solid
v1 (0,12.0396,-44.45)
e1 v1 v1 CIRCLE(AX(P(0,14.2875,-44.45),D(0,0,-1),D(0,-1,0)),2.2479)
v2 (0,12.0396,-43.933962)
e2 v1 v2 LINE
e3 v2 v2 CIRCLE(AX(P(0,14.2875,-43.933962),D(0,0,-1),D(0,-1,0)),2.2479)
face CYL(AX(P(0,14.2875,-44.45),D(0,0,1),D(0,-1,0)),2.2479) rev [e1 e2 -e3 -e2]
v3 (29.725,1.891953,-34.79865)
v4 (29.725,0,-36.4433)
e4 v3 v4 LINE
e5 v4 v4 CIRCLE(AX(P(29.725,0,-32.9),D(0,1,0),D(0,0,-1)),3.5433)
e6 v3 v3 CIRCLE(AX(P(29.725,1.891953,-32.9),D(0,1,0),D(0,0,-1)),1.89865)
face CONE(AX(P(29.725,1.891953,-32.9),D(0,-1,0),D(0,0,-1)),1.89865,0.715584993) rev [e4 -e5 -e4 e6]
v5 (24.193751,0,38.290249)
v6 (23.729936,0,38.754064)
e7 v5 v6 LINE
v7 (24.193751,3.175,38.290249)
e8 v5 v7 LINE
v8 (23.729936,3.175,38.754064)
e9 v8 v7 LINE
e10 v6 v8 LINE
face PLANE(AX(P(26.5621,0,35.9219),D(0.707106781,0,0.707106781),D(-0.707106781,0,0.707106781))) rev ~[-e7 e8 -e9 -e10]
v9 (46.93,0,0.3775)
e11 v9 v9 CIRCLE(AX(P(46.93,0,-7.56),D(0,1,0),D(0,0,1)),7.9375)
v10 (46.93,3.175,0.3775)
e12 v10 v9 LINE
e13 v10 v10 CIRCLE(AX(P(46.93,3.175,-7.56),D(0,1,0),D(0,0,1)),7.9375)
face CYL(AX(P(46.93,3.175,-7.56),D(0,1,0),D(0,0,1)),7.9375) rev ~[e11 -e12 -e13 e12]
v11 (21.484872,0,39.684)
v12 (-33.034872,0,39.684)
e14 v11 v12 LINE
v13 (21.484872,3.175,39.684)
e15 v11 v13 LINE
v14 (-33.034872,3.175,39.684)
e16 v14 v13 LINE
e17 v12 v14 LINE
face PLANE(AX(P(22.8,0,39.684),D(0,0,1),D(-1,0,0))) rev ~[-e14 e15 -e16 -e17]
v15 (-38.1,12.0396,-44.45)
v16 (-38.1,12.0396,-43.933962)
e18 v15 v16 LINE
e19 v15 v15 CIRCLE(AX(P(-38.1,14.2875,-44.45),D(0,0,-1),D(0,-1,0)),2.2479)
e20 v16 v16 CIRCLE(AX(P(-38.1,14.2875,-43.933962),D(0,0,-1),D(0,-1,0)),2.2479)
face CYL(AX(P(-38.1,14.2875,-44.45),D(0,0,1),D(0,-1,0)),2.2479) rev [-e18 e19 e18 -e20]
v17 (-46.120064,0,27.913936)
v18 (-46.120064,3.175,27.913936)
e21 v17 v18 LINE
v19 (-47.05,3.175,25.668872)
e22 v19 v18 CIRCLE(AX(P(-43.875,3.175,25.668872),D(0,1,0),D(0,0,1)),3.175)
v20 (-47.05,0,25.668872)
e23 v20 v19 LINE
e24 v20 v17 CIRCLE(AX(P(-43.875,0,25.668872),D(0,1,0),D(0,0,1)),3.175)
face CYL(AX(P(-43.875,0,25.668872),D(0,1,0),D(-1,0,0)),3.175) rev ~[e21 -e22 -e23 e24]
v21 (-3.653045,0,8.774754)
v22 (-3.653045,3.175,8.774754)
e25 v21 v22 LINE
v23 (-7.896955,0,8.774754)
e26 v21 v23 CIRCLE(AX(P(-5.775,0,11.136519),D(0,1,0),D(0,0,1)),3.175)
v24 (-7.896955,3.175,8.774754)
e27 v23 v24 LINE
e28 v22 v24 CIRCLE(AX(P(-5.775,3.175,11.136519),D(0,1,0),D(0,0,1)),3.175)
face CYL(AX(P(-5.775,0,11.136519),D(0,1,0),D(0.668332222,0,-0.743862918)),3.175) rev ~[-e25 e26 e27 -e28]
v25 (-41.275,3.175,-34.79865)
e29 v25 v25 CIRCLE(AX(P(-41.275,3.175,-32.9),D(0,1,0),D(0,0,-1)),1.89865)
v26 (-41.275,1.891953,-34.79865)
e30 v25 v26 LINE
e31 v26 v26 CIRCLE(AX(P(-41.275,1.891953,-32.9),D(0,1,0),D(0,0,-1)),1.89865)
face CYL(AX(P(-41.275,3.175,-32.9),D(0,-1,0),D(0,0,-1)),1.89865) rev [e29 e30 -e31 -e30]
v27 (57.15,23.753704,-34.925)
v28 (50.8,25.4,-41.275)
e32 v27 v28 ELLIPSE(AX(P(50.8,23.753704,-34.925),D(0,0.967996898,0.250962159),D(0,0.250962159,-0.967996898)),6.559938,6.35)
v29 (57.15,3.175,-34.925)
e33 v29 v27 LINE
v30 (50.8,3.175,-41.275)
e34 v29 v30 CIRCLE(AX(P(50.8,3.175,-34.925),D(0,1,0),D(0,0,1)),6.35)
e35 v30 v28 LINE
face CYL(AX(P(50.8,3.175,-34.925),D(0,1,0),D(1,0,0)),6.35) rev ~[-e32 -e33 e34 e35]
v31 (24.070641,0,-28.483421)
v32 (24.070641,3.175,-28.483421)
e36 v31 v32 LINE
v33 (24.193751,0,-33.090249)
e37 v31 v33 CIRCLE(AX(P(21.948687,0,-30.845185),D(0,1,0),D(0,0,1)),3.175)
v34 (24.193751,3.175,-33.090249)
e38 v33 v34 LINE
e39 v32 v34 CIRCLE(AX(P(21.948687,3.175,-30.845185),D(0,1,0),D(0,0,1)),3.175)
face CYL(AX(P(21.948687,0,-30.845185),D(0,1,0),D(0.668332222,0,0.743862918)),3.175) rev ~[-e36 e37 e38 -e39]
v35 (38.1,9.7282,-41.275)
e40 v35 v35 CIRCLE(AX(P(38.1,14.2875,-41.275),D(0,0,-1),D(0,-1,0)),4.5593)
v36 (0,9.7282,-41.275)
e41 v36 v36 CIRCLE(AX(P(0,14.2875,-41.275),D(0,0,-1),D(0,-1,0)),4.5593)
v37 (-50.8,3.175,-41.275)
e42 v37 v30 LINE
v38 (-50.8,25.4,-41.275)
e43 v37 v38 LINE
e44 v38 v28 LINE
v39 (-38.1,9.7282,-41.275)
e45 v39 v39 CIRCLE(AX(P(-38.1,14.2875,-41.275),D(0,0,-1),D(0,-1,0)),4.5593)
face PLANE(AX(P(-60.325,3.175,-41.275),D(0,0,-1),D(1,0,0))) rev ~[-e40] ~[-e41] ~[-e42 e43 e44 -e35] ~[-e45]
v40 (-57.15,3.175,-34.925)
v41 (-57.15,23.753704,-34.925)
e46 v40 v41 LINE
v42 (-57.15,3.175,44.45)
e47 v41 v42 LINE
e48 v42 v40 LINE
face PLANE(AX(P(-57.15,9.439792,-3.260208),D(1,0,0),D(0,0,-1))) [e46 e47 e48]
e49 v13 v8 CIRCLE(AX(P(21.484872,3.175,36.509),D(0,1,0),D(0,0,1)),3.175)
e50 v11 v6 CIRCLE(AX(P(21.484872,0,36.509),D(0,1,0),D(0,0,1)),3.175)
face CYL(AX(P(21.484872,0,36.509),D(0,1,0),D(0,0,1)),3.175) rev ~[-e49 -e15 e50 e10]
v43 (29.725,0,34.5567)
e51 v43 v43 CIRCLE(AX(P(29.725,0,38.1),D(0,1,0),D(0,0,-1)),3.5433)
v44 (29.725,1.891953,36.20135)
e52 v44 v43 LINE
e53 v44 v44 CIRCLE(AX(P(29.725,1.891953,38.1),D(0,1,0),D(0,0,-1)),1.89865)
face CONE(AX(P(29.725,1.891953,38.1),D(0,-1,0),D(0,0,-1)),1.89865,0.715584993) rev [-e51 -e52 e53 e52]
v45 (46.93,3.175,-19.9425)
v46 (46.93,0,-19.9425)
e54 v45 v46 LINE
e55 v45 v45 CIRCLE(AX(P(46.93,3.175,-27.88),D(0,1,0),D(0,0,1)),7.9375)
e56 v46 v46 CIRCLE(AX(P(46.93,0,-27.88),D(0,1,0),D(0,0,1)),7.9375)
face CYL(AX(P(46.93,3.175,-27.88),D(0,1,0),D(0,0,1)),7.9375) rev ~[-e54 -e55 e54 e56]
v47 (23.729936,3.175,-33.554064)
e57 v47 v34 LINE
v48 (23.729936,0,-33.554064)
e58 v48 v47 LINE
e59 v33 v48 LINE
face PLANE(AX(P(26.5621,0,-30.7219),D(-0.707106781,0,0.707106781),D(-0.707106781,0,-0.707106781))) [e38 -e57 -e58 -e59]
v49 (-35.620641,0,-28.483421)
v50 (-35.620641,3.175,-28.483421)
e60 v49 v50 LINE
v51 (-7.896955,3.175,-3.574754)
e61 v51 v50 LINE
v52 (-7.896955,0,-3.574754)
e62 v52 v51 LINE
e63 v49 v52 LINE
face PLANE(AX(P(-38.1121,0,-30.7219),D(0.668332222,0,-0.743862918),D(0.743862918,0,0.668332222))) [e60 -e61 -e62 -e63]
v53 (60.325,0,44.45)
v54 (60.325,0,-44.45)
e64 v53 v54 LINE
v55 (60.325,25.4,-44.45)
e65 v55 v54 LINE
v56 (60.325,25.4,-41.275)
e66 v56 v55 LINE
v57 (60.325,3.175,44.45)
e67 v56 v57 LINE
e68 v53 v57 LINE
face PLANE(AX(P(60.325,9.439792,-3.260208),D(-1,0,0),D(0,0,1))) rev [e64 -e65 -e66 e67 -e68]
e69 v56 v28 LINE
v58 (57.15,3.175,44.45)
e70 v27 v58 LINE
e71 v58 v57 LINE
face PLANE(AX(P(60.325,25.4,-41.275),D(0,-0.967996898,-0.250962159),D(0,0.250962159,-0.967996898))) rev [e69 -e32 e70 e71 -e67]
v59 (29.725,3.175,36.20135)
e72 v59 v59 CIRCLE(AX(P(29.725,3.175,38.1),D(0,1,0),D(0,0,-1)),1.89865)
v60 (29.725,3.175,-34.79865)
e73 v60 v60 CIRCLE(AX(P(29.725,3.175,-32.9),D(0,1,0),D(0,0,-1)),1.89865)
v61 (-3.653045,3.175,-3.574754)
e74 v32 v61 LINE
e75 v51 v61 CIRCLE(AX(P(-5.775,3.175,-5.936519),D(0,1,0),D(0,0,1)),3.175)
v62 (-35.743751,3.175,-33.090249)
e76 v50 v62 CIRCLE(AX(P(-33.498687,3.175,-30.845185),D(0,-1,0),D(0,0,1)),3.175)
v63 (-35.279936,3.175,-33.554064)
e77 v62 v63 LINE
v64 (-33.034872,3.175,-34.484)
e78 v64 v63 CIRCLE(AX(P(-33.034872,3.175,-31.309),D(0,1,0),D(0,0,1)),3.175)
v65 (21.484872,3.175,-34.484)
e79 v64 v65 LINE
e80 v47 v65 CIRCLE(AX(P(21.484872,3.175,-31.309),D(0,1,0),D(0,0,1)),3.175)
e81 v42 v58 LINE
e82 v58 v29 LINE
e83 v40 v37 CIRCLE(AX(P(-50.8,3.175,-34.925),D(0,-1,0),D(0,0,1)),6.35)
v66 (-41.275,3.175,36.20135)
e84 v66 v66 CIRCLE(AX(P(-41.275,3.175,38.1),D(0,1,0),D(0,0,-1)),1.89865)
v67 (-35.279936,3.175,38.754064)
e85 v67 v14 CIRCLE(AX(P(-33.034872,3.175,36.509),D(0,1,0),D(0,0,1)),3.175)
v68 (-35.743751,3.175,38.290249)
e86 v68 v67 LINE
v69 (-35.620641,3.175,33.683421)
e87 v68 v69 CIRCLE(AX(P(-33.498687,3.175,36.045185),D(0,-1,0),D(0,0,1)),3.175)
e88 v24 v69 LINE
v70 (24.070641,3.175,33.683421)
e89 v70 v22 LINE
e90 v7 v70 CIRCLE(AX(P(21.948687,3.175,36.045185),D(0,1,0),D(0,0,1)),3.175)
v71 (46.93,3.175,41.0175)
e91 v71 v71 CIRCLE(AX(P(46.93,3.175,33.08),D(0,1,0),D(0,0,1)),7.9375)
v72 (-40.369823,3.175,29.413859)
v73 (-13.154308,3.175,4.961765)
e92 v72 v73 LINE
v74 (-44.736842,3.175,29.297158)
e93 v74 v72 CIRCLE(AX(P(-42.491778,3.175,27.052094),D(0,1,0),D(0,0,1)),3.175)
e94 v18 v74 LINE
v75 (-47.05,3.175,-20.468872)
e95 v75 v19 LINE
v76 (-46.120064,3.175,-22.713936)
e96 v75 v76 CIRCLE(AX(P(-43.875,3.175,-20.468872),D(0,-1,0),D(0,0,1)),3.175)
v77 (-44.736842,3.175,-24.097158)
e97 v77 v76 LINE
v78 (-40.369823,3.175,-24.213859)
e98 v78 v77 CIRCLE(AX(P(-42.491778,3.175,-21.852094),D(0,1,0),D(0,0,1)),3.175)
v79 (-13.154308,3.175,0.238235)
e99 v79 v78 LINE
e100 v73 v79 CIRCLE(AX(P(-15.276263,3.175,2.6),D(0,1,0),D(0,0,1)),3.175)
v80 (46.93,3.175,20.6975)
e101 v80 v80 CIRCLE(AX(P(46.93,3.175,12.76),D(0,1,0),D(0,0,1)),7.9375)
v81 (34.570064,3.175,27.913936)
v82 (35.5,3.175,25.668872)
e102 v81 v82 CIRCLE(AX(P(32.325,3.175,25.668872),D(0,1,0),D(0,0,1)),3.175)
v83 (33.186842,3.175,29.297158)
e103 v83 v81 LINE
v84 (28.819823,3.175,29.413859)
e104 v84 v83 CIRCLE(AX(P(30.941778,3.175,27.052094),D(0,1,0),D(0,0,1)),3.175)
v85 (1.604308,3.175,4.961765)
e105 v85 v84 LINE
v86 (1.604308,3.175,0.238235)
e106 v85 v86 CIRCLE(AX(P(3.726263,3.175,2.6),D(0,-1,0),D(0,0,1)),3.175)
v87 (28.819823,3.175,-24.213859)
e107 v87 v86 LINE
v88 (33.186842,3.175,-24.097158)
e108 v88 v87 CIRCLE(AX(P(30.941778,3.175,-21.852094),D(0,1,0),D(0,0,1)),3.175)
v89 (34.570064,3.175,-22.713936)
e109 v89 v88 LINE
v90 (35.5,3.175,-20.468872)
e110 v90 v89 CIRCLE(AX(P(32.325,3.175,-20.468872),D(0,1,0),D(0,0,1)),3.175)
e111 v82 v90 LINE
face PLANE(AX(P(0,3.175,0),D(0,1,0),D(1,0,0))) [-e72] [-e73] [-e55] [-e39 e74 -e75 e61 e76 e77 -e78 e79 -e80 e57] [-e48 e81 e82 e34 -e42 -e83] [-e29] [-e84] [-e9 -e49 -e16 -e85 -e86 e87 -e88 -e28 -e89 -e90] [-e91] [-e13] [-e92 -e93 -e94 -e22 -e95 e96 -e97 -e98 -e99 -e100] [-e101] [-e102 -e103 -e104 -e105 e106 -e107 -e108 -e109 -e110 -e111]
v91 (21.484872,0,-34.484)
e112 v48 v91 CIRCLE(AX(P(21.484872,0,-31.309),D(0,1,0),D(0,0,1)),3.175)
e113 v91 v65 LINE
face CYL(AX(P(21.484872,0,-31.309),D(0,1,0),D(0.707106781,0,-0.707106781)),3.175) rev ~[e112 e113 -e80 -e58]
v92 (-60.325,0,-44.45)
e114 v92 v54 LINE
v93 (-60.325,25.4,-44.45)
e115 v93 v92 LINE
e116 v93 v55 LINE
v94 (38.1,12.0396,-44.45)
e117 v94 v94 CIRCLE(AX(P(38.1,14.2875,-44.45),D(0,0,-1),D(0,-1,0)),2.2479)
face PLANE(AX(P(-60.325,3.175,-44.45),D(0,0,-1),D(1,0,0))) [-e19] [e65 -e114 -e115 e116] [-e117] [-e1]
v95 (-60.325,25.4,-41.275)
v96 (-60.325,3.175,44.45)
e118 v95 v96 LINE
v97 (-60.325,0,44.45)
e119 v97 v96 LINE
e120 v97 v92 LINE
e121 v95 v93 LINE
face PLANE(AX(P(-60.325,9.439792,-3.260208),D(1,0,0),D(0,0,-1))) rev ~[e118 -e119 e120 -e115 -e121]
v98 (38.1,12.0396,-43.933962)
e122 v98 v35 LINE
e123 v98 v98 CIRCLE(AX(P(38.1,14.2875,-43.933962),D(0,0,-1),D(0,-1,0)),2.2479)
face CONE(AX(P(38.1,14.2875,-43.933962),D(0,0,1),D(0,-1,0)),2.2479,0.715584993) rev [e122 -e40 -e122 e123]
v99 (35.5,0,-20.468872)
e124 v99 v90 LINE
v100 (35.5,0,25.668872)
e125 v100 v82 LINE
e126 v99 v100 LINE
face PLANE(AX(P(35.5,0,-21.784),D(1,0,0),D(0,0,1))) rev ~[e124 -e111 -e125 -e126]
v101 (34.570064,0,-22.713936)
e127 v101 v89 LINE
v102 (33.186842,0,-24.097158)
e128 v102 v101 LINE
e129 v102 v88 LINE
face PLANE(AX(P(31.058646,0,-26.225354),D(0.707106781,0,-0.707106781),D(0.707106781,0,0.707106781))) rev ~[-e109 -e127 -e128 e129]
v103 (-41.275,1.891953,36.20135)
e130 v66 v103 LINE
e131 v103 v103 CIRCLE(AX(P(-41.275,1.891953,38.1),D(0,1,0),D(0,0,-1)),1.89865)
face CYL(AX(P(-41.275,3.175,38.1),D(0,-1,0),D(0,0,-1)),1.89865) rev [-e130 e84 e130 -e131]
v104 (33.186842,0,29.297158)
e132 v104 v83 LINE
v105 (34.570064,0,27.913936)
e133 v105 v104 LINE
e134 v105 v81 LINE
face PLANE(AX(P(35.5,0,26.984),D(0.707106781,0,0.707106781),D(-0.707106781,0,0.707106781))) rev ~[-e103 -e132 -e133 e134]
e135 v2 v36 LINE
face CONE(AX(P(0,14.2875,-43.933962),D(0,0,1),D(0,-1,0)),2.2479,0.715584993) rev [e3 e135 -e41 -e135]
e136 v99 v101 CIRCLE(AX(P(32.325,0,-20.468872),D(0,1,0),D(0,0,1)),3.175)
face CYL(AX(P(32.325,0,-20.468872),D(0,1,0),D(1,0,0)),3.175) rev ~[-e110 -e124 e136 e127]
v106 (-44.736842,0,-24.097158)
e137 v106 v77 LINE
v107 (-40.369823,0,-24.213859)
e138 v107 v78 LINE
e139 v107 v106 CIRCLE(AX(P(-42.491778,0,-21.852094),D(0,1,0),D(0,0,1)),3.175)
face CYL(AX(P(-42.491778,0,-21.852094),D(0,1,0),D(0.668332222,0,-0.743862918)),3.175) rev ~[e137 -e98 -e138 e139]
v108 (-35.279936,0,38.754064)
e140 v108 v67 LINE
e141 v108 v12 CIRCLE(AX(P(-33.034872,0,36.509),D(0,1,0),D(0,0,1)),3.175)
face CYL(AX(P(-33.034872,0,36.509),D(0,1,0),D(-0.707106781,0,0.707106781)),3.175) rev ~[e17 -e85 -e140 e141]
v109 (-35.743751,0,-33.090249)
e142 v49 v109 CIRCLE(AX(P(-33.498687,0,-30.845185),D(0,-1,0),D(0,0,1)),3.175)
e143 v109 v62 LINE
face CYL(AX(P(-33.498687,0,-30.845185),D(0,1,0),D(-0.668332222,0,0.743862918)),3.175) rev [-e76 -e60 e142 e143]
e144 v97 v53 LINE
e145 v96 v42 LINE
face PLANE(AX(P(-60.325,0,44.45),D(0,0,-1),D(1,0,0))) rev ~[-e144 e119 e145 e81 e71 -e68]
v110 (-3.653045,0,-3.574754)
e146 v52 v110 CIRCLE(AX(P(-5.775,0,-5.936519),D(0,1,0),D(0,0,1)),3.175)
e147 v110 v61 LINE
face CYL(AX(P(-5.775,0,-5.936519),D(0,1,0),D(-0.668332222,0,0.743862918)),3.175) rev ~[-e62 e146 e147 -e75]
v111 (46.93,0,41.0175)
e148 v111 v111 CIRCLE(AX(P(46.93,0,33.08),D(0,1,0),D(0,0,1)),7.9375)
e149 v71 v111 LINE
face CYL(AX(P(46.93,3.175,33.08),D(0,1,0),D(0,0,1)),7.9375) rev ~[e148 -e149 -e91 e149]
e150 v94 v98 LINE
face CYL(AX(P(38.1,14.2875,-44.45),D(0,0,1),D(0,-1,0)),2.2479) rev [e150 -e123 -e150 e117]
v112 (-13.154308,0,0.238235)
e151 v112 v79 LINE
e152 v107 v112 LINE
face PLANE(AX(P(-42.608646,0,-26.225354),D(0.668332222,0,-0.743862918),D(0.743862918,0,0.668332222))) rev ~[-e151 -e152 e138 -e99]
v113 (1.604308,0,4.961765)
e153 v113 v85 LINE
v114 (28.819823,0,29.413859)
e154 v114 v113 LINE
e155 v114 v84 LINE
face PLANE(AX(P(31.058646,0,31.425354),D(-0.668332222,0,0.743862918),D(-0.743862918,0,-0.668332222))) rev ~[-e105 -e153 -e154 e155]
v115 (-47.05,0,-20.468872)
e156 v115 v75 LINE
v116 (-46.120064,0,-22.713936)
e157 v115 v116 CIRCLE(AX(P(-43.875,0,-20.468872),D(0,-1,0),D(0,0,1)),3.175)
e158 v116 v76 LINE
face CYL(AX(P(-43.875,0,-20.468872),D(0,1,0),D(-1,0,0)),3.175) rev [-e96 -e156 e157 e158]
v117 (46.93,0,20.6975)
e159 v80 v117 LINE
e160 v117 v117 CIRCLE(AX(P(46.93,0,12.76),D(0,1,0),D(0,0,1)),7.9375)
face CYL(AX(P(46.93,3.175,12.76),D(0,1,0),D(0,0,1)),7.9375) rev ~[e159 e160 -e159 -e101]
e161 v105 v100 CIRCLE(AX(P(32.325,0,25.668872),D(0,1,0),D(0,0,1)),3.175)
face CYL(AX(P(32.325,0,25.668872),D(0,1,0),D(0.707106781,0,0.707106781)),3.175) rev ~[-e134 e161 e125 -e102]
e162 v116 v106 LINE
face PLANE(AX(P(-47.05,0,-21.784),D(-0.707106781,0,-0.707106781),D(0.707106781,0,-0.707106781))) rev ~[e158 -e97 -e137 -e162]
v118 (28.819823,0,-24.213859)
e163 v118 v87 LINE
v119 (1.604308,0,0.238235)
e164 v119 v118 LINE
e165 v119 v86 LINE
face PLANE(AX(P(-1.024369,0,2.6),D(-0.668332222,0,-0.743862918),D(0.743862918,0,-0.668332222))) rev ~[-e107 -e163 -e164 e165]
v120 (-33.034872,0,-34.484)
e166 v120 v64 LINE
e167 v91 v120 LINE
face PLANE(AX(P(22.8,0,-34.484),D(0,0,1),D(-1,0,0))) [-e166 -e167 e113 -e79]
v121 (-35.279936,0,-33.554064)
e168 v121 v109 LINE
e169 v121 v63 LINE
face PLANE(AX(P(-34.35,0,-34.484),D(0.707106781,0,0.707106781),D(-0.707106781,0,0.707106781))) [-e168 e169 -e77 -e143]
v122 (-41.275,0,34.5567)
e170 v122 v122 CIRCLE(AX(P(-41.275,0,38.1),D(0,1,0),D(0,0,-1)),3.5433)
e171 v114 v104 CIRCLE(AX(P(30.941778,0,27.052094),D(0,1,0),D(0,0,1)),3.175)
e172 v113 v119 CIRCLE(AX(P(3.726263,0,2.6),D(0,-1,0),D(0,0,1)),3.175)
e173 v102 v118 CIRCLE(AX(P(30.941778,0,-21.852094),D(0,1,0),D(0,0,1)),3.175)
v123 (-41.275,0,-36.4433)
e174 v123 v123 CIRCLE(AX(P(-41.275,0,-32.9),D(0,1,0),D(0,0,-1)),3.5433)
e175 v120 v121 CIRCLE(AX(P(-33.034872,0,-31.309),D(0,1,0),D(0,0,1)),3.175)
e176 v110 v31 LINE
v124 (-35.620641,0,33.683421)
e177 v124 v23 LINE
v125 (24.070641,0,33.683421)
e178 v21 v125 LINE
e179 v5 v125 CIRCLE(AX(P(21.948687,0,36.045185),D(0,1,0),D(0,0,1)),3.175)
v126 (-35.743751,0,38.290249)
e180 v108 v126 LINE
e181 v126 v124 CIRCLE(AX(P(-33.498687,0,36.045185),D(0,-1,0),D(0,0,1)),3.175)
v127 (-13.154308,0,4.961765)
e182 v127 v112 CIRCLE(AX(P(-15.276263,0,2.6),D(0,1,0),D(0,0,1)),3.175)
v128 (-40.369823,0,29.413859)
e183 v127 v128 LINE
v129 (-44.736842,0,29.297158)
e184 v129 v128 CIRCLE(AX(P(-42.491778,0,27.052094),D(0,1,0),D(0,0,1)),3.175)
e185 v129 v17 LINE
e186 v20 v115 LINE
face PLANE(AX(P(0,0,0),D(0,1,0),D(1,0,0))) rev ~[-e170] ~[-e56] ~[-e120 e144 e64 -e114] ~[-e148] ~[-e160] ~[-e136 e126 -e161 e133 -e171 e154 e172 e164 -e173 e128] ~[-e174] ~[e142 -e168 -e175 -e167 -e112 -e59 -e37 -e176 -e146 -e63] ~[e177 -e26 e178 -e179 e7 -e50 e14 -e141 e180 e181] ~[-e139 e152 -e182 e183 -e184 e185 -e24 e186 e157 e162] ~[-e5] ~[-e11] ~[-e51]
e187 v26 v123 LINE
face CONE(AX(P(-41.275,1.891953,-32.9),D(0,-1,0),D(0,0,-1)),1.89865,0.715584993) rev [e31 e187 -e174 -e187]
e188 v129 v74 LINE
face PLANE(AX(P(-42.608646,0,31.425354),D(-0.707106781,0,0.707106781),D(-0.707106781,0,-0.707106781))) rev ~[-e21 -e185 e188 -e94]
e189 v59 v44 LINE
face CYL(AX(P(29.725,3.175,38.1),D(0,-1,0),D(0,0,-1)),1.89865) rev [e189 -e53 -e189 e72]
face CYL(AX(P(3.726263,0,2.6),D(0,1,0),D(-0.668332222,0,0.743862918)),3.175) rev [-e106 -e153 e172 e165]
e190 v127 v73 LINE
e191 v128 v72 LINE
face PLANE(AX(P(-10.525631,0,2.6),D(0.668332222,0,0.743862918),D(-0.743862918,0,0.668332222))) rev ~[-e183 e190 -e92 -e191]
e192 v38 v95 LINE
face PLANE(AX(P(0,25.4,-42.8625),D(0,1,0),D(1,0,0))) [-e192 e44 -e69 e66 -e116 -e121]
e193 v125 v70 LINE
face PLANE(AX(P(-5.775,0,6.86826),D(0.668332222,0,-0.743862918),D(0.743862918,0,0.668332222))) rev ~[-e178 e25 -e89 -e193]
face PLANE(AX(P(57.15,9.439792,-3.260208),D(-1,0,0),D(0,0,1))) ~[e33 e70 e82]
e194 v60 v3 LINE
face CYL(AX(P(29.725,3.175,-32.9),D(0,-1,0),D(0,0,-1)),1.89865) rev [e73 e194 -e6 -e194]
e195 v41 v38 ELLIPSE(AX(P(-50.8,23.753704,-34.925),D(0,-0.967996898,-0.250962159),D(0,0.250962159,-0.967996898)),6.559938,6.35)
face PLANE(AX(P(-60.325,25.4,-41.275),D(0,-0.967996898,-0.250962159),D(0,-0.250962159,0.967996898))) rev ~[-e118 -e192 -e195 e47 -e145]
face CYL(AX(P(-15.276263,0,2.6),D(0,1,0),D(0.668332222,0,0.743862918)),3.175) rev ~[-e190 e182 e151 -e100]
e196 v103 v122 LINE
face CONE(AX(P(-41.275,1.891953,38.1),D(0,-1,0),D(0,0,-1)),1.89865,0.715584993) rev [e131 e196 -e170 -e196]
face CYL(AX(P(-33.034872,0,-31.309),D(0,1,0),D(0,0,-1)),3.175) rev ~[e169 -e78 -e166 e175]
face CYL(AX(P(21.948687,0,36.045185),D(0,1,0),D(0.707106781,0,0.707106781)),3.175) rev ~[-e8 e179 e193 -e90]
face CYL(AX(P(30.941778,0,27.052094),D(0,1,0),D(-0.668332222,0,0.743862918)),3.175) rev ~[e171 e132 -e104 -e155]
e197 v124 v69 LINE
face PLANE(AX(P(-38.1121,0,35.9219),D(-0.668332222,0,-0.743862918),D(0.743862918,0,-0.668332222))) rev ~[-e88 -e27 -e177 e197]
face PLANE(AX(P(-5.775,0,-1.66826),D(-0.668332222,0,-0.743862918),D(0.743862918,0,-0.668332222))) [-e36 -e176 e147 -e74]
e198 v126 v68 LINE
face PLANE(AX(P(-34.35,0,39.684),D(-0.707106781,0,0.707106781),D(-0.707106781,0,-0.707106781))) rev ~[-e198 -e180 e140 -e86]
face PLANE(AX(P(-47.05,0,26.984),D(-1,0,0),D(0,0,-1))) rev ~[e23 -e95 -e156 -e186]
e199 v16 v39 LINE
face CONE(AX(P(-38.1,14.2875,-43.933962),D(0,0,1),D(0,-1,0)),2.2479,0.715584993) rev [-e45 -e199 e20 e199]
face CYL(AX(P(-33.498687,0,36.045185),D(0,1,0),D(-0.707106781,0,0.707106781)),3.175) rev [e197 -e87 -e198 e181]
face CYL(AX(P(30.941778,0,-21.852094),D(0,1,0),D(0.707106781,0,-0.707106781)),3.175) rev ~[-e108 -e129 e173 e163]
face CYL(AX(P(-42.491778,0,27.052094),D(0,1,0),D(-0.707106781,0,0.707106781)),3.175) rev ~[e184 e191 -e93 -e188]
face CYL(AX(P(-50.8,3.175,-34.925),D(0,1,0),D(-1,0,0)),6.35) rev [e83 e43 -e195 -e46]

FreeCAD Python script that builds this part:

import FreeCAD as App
import Part
import Sketcher

V = App.Vector
Q = App.Units.Quantity


def edges_at(feature, points):
    """Names of the edges that pass closest to the given points."""
    edges = feature.Shape.Edges
    near = lambda p: min(range(len(edges)), key=lambda i: edges[i].distToShape(Part.Vertex(*p))[0])
    return sorted({f"Edge{near(p) + 1}" for p in points})

doc = App.newDocument("Part")
body = doc.addObject("PartDesign::Body", "Body")

# Sketch on XZ plane
sketch1 = body.newObject("Sketcher::SketchObject", "Sketch")
sketch1.AttachmentSupport = (doc.getObject("XZ_Plane"), [""])
sketch1.MapMode = "FlatFace"
sketch1.addGeometry(Part.LineSegment(V(-60, -44, 0), V(-60, 44, 0)), False)
sketch1.addGeometry(Part.LineSegment(V(-60, 44, 0), V(60, 44, 0)), False)
sketch1.addGeometry(Part.LineSegment(V(60, 44, 0), V(60, -44, 0)), False)
sketch1.addGeometry(Part.LineSegment(V(60, -44, 0), V(-60, -44, 0)), False)
sketch1.addConstraint(Sketcher.Constraint("Coincident", 0, 2, 1, 1))
sketch1.addConstraint(Sketcher.Constraint("Coincident", 1, 2, 2, 1))
sketch1.addConstraint(Sketcher.Constraint("Coincident", 2, 2, 3, 1))
sketch1.addConstraint(Sketcher.Constraint("Coincident", 3, 2, 0, 1))
sketch1.addConstraint(Sketcher.Constraint("Vertical", 0))
sketch1.addConstraint(Sketcher.Constraint("Horizontal", 1))
sketch1.addConstraint(Sketcher.Constraint("Vertical", 2))
sketch1.addConstraint(Sketcher.Constraint("Horizontal", 3))
sketch1.addConstraint(Sketcher.Constraint("Symmetric", 0, 2, 2, 2, -1, 1))
sketch1.addConstraint(Sketcher.Constraint("DistanceY", 0, 1, 0, 2, Q("3.5 in")))
sketch1.addConstraint(Sketcher.Constraint("DistanceX", 1, 1, 1, 2, Q("4.75 in")))
pad1 = body.newObject("PartDesign::Pad", "Pad")
pad1.Profile = sketch1
pad1.Length = Q("0.125 in")
pad1.Reversed = True

# Sketch on XZ plane
sketch2 = body.newObject("Sketcher::SketchObject", "Sketch001")
sketch2.AttachmentSupport = (doc.getObject("XZ_Plane"), [""])
sketch2.MapMode = "FlatFace"
sketch2.AttachmentOffset = App.Placement(V(0, 0, -0.125 * 25.4), App.Rotation())
sketch2.addGeometry(Part.LineSegment(V(-60.3, -44.5, 0), V(-60.3, -41.3, 0)), False)
sketch2.addGeometry(Part.LineSegment(V(-60.3, -41.3, 0), V(60.3, -41.3, 0)), False)
sketch2.addGeometry(Part.LineSegment(V(60.3, -41.3, 0), V(60.3, -44.5, 0)), False)
sketch2.addGeometry(Part.LineSegment(V(60.3, -44.5, 0), V(-60.3, -44.5, 0)), False)
sketch2.addConstraint(Sketcher.Constraint("Coincident", 0, 2, 1, 1))
sketch2.addConstraint(Sketcher.Constraint("Coincident", 1, 2, 2, 1))
sketch2.addConstraint(Sketcher.Constraint("Coincident", 2, 2, 3, 1))
sketch2.addConstraint(Sketcher.Constraint("Coincident", 3, 2, 0, 1))
sketch2.addConstraint(Sketcher.Constraint("Vertical", 0))
sketch2.addConstraint(Sketcher.Constraint("Horizontal", 1))
sketch2.addConstraint(Sketcher.Constraint("Vertical", 2))
sketch2.addConstraint(Sketcher.Constraint("Horizontal", 3))
sketch2.addConstraint(Sketcher.Constraint("DistanceX", 1, 1, 1, 2, Q("4.75 in")))
sketch2.addConstraint(Sketcher.Constraint("DistanceY", 0, 1, 0, 2, Q("0.125 in")))
sketch2.addConstraint(Sketcher.Constraint("DistanceY", 2, 2, -1, 1, Q("1.75 in")))
sketch2.addConstraint(Sketcher.Constraint("DistanceX", 0, 2, -1, 1, Q("2.375 in")))
pad2 = body.newObject("PartDesign::Pad", "Pad001")
pad2.Profile = sketch2
pad2.Length = Q("0.875 in")
pad2.Reversed = True

# Sketch on YZ plane
sketch3 = body.newObject("Sketcher::SketchObject", "Sketch002")
sketch3.AttachmentSupport = (doc.getObject("YZ_Plane"), [""])
sketch3.MapMode = "FlatFace"
sketch3.AttachmentOffset = App.Placement(V(0, 0, 29.725), App.Rotation())
sketch3.addGeometry(Part.LineSegment(V(3.2, 38.1, 0), V(0, 38.1, 0)), False)
sketch3.addGeometry(Part.LineSegment(V(0, 38.1, 0), V(0, 34.6, 0)), False)
sketch3.addGeometry(Part.LineSegment(V(0, 34.6, 0), V(1.9, 36.2, 0)), False)
sketch3.addGeometry(Part.LineSegment(V(1.9, 36.2, 0), V(3.2, 36.2, 0)), False)
sketch3.addGeometry(Part.LineSegment(V(3.2, 36.2, 0), V(3.2, 38.1, 0)), False)
sketch3.addGeometry(Part.LineSegment(V(0, 38.1, 0), V(3.2, 38.1, 0)), True)  # axis
sketch3.addConstraint(Sketcher.Constraint("Coincident", 0, 2, 1, 1))
sketch3.addConstraint(Sketcher.Constraint("Coincident", 1, 2, 2, 1))
sketch3.addConstraint(Sketcher.Constraint("Coincident", 2, 2, 3, 1))
sketch3.addConstraint(Sketcher.Constraint("Coincident", 3, 2, 4, 1))
sketch3.addConstraint(Sketcher.Constraint("Coincident", 4, 2, 0, 1))
sketch3.addConstraint(Sketcher.Constraint("Horizontal", 0))
sketch3.addConstraint(Sketcher.Constraint("Vertical", 1))
sketch3.addConstraint(Sketcher.Constraint("Horizontal", 3))
sketch3.addConstraint(Sketcher.Constraint("Vertical", 4))
sketch3.addConstraint(Sketcher.Constraint("Horizontal", 5))
sketch3.addConstraint(Sketcher.Constraint("Coincident", 5, 1, 0, 2))
sketch3.addConstraint(Sketcher.Constraint("PointOnObject", 0, 2, -2))
sketch3.addConstraint(Sketcher.Constraint("Vertical", 3, 2, 5, 2))
sketch3.addConstraint(Sketcher.Constraint("Angle", 2, Q("41 deg")))
sketch3.addConstraint(Sketcher.Constraint("DistanceY", -1, 1, 0, 2, Q("1.5 in")))
sketch3.addConstraint(Sketcher.Constraint("DistanceX", 0, 2, 0, 1, Q("0.125 in")))
sketch3.addConstraint(Sketcher.Constraint("DistanceY", 1, 2, 1, 1, Q("0.1395 in")))
sketch3.addConstraint(Sketcher.Constraint("DistanceY", 4, 1, 4, 2, Q("1.89865 mm")))
groove = body.newObject("PartDesign::Groove", "Groove")
groove.Profile = sketch3
groove.ReferenceAxis = (sketch3, ["Axis0"])
groove.Angle = 360
doc.recompute()

linearpattern = body.newObject("PartDesign::LinearPattern", "LinearPattern")
linearpattern.Originals = [groove]
linearpattern.Direction = (doc.getObject("Z_Axis"), [""])
linearpattern.Mode = "offset"
linearpattern.Offset = 71
linearpattern.Occurrences = 2
linearpattern.Reversed = True
body.Tip = linearpattern
doc.recompute()

datumline = body.newObject("PartDesign::Line", "DatumLine")
datumline.Placement = App.Placement(V(0, 0, 0), App.Rotation(V(0, 0, 1), V(-0.707106781, 0, -0.707106781)))
linearpattern2 = body.newObject("PartDesign::LinearPattern", "LinearPattern001")
linearpattern2.Originals = [groove]
linearpattern2.Direction = (datumline, [""])
linearpattern2.Mode = "offset"
linearpattern2.Offset = 100.409163
linearpattern2.Occurrences = 2
body.Tip = linearpattern2
doc.recompute()

linearpattern3 = body.newObject("PartDesign::LinearPattern", "LinearPattern002")
linearpattern3.Originals = [groove]
linearpattern3.Direction = (doc.getObject("X_Axis"), [""])
linearpattern3.Mode = "offset"
linearpattern3.Offset = 71
linearpattern3.Occurrences = 2
linearpattern3.Reversed = True
body.Tip = linearpattern3

# Sketch on XZ plane
sketch4 = body.newObject("Sketcher::SketchObject", "Sketch003")
sketch4.AttachmentSupport = (doc.getObject("XZ_Plane"), [""])
sketch4.MapMode = "FlatFace"
sketch4.addGeometry(Part.LineSegment(V(-47, -22, 0), V(-43, -26, 0)), False)
sketch4.addGeometry(Part.LineSegment(V(-43, -26, 0), V(-11, 3, 0)), False)
sketch4.addGeometry(Part.LineSegment(V(-11, 3, 0), V(-43, 31, 0)), False)
sketch4.addGeometry(Part.LineSegment(V(-43, 31, 0), V(-47, 27, 0)), False)
sketch4.addGeometry(Part.LineSegment(V(-47, 27, 0), V(-47, -22, 0)), False)
sketch4.addGeometry(Part.LineSegment(V(-38, 36, 0), V(-6, 7, 0)), False)
sketch4.addGeometry(Part.LineSegment(V(-6, 7, 0), V(27, 36, 0)), False)
sketch4.addGeometry(Part.LineSegment(V(27, 36, 0), V(23, 40, 0)), False)
sketch4.addGeometry(Part.LineSegment(V(23, 40, 0), V(-34, 40, 0)), False)
sketch4.addGeometry(Part.LineSegment(V(-34, 40, 0), V(-38, 36, 0)), False)
sketch4.addGeometry(Part.LineSegment(V(-1, 3, 0), V(31, -26, 0)), False)
sketch4.addGeometry(Part.LineSegment(V(31, -26, 0), V(36, -22, 0)), False)
sketch4.addGeometry(Part.LineSegment(V(36, -22, 0), V(36, 27, 0)), False)
sketch4.addGeometry(Part.LineSegment(V(36, 27, 0), V(31, 31, 0)), False)
sketch4.addGeometry(Part.LineSegment(V(31, 31, 0), V(-1, 3, 0)), False)
sketch4.addGeometry(Part.LineSegment(V(-6, -2, 0), V(-38, -31, 0)), False)
sketch4.addGeometry(Part.LineSegment(V(-38, -31, 0), V(-34, -34, 0)), False)
sketch4.addGeometry(Part.LineSegment(V(-34, -34, 0), V(23, -34, 0)), False)
sketch4.addGeometry(Part.LineSegment(V(23, -34, 0), V(27, -31, 0)), False)
sketch4.addGeometry(Part.LineSegment(V(27, -31, 0), V(-6, -2, 0)), False)
sketch4.addConstraint(Sketcher.Constraint("Coincident", 0, 2, 1, 1))
sketch4.addConstraint(Sketcher.Constraint("Coincident", 1, 2, 2, 1))
sketch4.addConstraint(Sketcher.Constraint("Coincident", 2, 2, 3, 1))
sketch4.addConstraint(Sketcher.Constraint("Coincident", 3, 2, 4, 1))
sketch4.addConstraint(Sketcher.Constraint("Coincident", 4, 2, 0, 1))
sketch4.addConstraint(Sketcher.Constraint("Coincident", 5, 2, 6, 1))
sketch4.addConstraint(Sketcher.Constraint("Coincident", 6, 2, 7, 1))
sketch4.addConstraint(Sketcher.Constraint("Coincident", 7, 2, 8, 1))
sketch4.addConstraint(Sketcher.Constraint("Coincident", 8, 2, 9, 1))
sketch4.addConstraint(Sketcher.Constraint("Coincident", 9, 2, 5, 1))
sketch4.addConstraint(Sketcher.Constraint("Coincident", 10, 2, 11, 1))
sketch4.addConstraint(Sketcher.Constraint("Coincident", 11, 2, 12, 1))
sketch4.addConstraint(Sketcher.Constraint("Coincident", 12, 2, 13, 1))
sketch4.addConstraint(Sketcher.Constraint("Coincident", 13, 2, 14, 1))
sketch4.addConstraint(Sketcher.Constraint("Coincident", 14, 2, 10, 1))
sketch4.addConstraint(Sketcher.Constraint("Coincident", 15, 2, 16, 1))
sketch4.addConstraint(Sketcher.Constraint("Coincident", 16, 2, 17, 1))
sketch4.addConstraint(Sketcher.Constraint("Coincident", 17, 2, 18, 1))
sketch4.addConstraint(Sketcher.Constraint("Coincident", 18, 2, 19, 1))
sketch4.addConstraint(Sketcher.Constraint("Coincident", 19, 2, 15, 1))
sketch4.addConstraint(Sketcher.Constraint("Vertical", 4))
sketch4.addConstraint(Sketcher.Constraint("Horizontal", 8))
sketch4.addConstraint(Sketcher.Constraint("Vertical", 12))
sketch4.addConstraint(Sketcher.Constraint("Horizontal", 17))
sketch4.addConstraint(Sketcher.Constraint("Perpendicular", 0, 3))
sketch4.addConstraint(Sketcher.Constraint("Parallel", 2, 5))
sketch4.addConstraint(Sketcher.Constraint("Parallel", 1, 6))
sketch4.addConstraint(Sketcher.Constraint("Perpendicular", 3, 7))
sketch4.addConstraint(Sketcher.Constraint("Perpendicular", 7, 9))
sketch4.addConstraint(Sketcher.Constraint("Parallel", 5, 10))
sketch4.addConstraint(Sketcher.Constraint("Parallel", 9, 11))
sketch4.addConstraint(Sketcher.Constraint("Perpendicular", 11, 13))
sketch4.addConstraint(Sketcher.Constraint("Parallel", 6, 14))
sketch4.addConstraint(Sketcher.Constraint("Parallel", 14, 15))
sketch4.addConstraint(Sketcher.Constraint("Parallel", 13, 16))
sketch4.addConstraint(Sketcher.Constraint("Perpendicular", 16, 18))
sketch4.addConstraint(Sketcher.Constraint("Parallel", 10, 19))
sketch4.addConstraint(Sketcher.Constraint("Horizontal", 6, 2, 9, 2))
sketch4.addConstraint(Sketcher.Constraint("Horizontal", 0, 2, 10, 2))
sketch4.addConstraint(Sketcher.Constraint("Horizontal", 4, 2, 11, 2))
sketch4.addConstraint(Sketcher.Constraint("Horizontal", 3, 2, 12, 2))
sketch4.addConstraint(Sketcher.Constraint("Horizontal", 2, 2, 13, 2))
sketch4.addConstraint(Sketcher.Constraint("Horizontal", 1, 2, 14, 2))
sketch4.addConstraint(Sketcher.Constraint("Horizontal", 15, 2, 18, 2))
sketch4.addConstraint(Sketcher.Constraint("Vertical", 0, 2, 2, 2))
sketch4.addConstraint(Sketcher.Constraint("Vertical", 10, 2, 13, 2))
sketch4.addConstraint(Sketcher.Constraint("Vertical", 9, 2, 15, 2))
sketch4.addConstraint(Sketcher.Constraint("Vertical", 8, 2, 16, 2))
sketch4.addConstraint(Sketcher.Constraint("Vertical", 7, 2, 17, 2))
sketch4.addConstraint(Sketcher.Constraint("DistanceX", 8, 2, 8, 1, Q("2.25 in")))
sketch4.addConstraint(Sketcher.Constraint("DistanceY", 4, 2, 4, 1, Q("1.92 in")))
sketch4.addConstraint(Sketcher.Constraint("DistanceY", 3, 2, 7, 2, Q("0.5 in")))
sketch4.addConstraint(Sketcher.Constraint("DistanceX", 3, 2, 8, 2, Q("0.5 in")))
sketch4.addConstraint(Sketcher.Constraint("DistanceX", 7, 2, 11, 2, Q("0.5 in")))
sketch4.addConstraint(Sketcher.Constraint("DistanceY", 16, 2, 4, 2, Q("0.5 in")))
sketch4.addConstraint(Sketcher.Constraint("DistanceY", -1, 1, 1, 2, Q("2.6 mm")))
sketch4.addConstraint(Sketcher.Constraint("DistanceX", 3, 2, -1, 1, Q("47.05 mm")))
sketch4.addConstraint(Sketcher.Constraint("DistanceX", -1, 1, 6, 2, Q("26.5621 mm")))
sketch4.addConstraint(Sketcher.Constraint("DistanceX", 1, 2, -1, 1, Q("10.525631 mm")))
sketch4.addConstraint(Sketcher.Constraint("DistanceY", -1, 1, 5, 2, Q("6.86826 mm")))
pocket1 = body.newObject("PartDesign::Pocket", "Pocket")
pocket1.Profile = sketch4
pocket1.Type = "ThroughAll"
doc.recompute()

fillet = body.newObject("PartDesign::Fillet", "Fillet")
fillet.Base = (pocket1, edges_at(pocket1, [
    (31.059, 1.587, -26.225),
    (-1.024, 1.587, 2.6),
    (31.059, 1.587, 31.425),
    (35.5, 1.587, 26.984),
    (35.5, 1.587, -21.784),
    (-38.112, 1.587, -30.722),
    (-5.775, 1.587, -1.668),
    (26.562, 1.587, -30.722),
    (22.8, 1.587, -34.484),
    (-34.35, 1.587, -34.484),
    (-42.609, 1.587, -26.225),
    (-47.05, 1.587, -21.784),
    (-47.05, 1.587, 26.984),
    (-42.609, 1.587, 31.425),
    (-10.526, 1.587, 2.6),
    (-5.775, 1.587, 6.868),
    (-38.112, 1.587, 35.922),
    (-34.35, 1.587, 39.684),
    (22.8, 1.587, 39.684),
    (26.562, 1.587, 35.922),
]))
fillet.Radius = Q("0.125 in")

# Sketch on YZ plane
sketch5 = body.newObject("Sketcher::SketchObject", "Sketch004")
sketch5.AttachmentSupport = (doc.getObject("YZ_Plane"), [""])
sketch5.MapMode = "FlatFace"
sketch5.AttachmentOffset = App.Placement(V(0, 0, -2.375 * 25.4), App.Rotation())
sketch5.addGeometry(Part.LineSegment(V(3, 44, 0), V(25, -41, 0)), False)
sketch5.addGeometry(Part.LineSegment(V(25, -41, 0), V(3, -41, 0)), False)
sketch5.addGeometry(Part.LineSegment(V(3, -41, 0), V(3, 44, 0)), False)
sketch5.addConstraint(Sketcher.Constraint("Coincident", 0, 2, 1, 1))
sketch5.addConstraint(Sketcher.Constraint("Coincident", 1, 2, 2, 1))
sketch5.addConstraint(Sketcher.Constraint("Coincident", 2, 2, 0, 1))
sketch5.addConstraint(Sketcher.Constraint("Horizontal", 1))
sketch5.addConstraint(Sketcher.Constraint("Vertical", 2))
sketch5.addConstraint(Sketcher.Constraint("DistanceX", -1, 1, 0, 2, Q("1 in")))
sketch5.addConstraint(Sketcher.Constraint("DistanceX", 1, 2, 1, 1, Q("0.875 in")))
sketch5.addConstraint(Sketcher.Constraint("DistanceY", 2, 1, 2, 2, Q("3.375 in")))
sketch5.addConstraint(Sketcher.Constraint("DistanceY", -1, 1, 2, 2, Q("1.75 in")))
pad3 = body.newObject("PartDesign::Pad", "Pad002")
pad3.Profile = sketch5
pad3.Length = Q("0.125 in")
doc.recompute()

fillet2 = body.newObject("PartDesign::Fillet", "Fillet001")
fillet2.Base = (pad3, edges_at(pad3, [(-57.15, 14.287, -41.275)]))
fillet2.Radius = Q("0.25 in")
doc.recompute()

mirrored = body.newObject("PartDesign::Mirrored", "Mirrored")
mirrored.Originals = [pad3]
mirrored.MirrorPlane = (doc.getObject("YZ_Plane"), [""])
body.Tip = mirrored
doc.recompute()

fillet3 = body.newObject("PartDesign::Fillet", "Fillet002")
fillet3.Base = (mirrored, edges_at(mirrored, [(57.15, 14.287, -41.275)]))
fillet3.Radius = Q("0.25 in")

# Sketch on YZ plane
sketch6 = body.newObject("Sketcher::SketchObject", "Sketch005")
sketch6.AttachmentSupport = (doc.getObject("YZ_Plane"), [""])
sketch6.MapMode = "FlatFace"
sketch6.AttachmentOffset = App.Placement(V(0, 0, -1.5 * 25.4), App.Rotation())
sketch6.addGeometry(Part.LineSegment(V(14.3, -44.5, 0), V(14.3, -41.3, 0)), False)
sketch6.addGeometry(Part.LineSegment(V(14.3, -41.3, 0), V(9.7, -41.3, 0)), False)
sketch6.addGeometry(Part.LineSegment(V(9.7, -41.3, 0), V(12, -43.9, 0)), False)
sketch6.addGeometry(Part.LineSegment(V(12, -43.9, 0), V(12, -44.5, 0)), False)
sketch6.addGeometry(Part.LineSegment(V(12, -44.5, 0), V(14.3, -44.5, 0)), False)
sketch6.addGeometry(Part.LineSegment(V(14.3, -41.3, 0), V(14.3, -44.5, 0)), True)  # axis
sketch6.addConstraint(Sketcher.Constraint("Coincident", 0, 2, 1, 1))
sketch6.addConstraint(Sketcher.Constraint("Coincident", 1, 2, 2, 1))
sketch6.addConstraint(Sketcher.Constraint("Coincident", 2, 2, 3, 1))
sketch6.addConstraint(Sketcher.Constraint("Coincident", 3, 2, 4, 1))
sketch6.addConstraint(Sketcher.Constraint("Coincident", 4, 2, 0, 1))
sketch6.addConstraint(Sketcher.Constraint("Vertical", 0))
sketch6.addConstraint(Sketcher.Constraint("Horizontal", 1))
sketch6.addConstraint(Sketcher.Constraint("Vertical", 3))
sketch6.addConstraint(Sketcher.Constraint("Horizontal", 4))
sketch6.addConstraint(Sketcher.Constraint("Vertical", 5))
sketch6.addConstraint(Sketcher.Constraint("Coincident", 5, 1, 0, 2))
sketch6.addConstraint(Sketcher.Constraint("Horizontal", 3, 2, 5, 2))
sketch6.addConstraint(Sketcher.Constraint("Angle", 2, Q("-49 deg")))
sketch6.addConstraint(Sketcher.Constraint("DistanceY", 0, 1, 0, 2, Q("0.125 in")))
sketch6.addConstraint(Sketcher.Constraint("DistanceY", 3, 2, -1, 1, Q("1.75 in")))
sketch6.addConstraint(Sketcher.Constraint("DistanceX", 1, 2, 1, 1, Q("0.1795 in")))
sketch6.addConstraint(Sketcher.Constraint("DistanceX", 4, 1, 4, 2, Q("0.0885 in")))
sketch6.addConstraint(Sketcher.Constraint("DistanceX", -1, 1, 0, 2, Q("0.5625 in")))
groove2 = body.newObject("PartDesign::Groove", "Groove001")
groove2.Profile = sketch6
groove2.ReferenceAxis = (sketch6, ["Axis0"])
groove2.Angle = 360
doc.recompute()

linearpattern4 = body.newObject("PartDesign::LinearPattern", "LinearPattern003")
linearpattern4.Originals = [groove2]
linearpattern4.Direction = (doc.getObject("X_Axis"), [""])
linearpattern4.Mode = "offset"
linearpattern4.Offset = Q("3 in")
linearpattern4.Occurrences = 2
body.Tip = linearpattern4
doc.recompute()

linearpattern5 = body.newObject("PartDesign::LinearPattern", "LinearPattern004")
linearpattern5.Originals = [groove2]
linearpattern5.Direction = (doc.getObject("X_Axis"), [""])
linearpattern5.Mode = "offset"
linearpattern5.Offset = Q("1.5 in")
linearpattern5.Occurrences = 2
body.Tip = linearpattern5

# Sketch on XZ plane
sketch7 = body.newObject("Sketcher::SketchObject", "Sketch006")
sketch7.AttachmentSupport = (doc.getObject("XZ_Plane"), [""])
sketch7.MapMode = "FlatFace"
sketch7.AttachmentOffset = App.Placement(V(0, 0, -0.125 * 25.4), App.Rotation())
sketch7.addGeometry(Part.Circle(V(47, -28, 0), V(0, 0, 1), 8), False)
sketch7.addConstraint(Sketcher.Constraint("Diameter", 0, Q("0.625 in")))
sketch7.addConstraint(Sketcher.Constraint("DistanceX", -1, 1, 0, 3, Q("46.93 mm")))
sketch7.addConstraint(Sketcher.Constraint("DistanceY", 0, 3, -1, 1, Q("27.88 mm")))
pocket2 = body.newObject("PartDesign::Pocket", "Pocket001")
pocket2.Profile = sketch7
pocket2.Type = "UpToFirst"
pocket2.Reversed = True

# Sketch on XZ plane
sketch8 = body.newObject("Sketcher::SketchObject", "Sketch007")
sketch8.AttachmentSupport = (doc.getObject("XZ_Plane"), [""])
sketch8.MapMode = "FlatFace"
sketch8.AttachmentOffset = App.Placement(V(0, 0, -0.125 * 25.4), App.Rotation())
sketch8.addGeometry(Part.Circle(V(47, -8, 0), V(0, 0, 1), 8), False)
sketch8.addConstraint(Sketcher.Constraint("Diameter", 0, Q("0.625 in")))
sketch8.addConstraint(Sketcher.Constraint("DistanceX", -1, 1, 0, 3, Q("46.93 mm")))
sketch8.addConstraint(Sketcher.Constraint("DistanceY", 0, 3, -1, 1, Q("7.56 mm")))
pocket3 = body.newObject("PartDesign::Pocket", "Pocket002")
pocket3.Profile = sketch8
pocket3.Type = "UpToFirst"
pocket3.Reversed = True

# Sketch on XZ plane
sketch9 = body.newObject("Sketcher::SketchObject", "Sketch008")
sketch9.AttachmentSupport = (doc.getObject("XZ_Plane"), [""])
sketch9.MapMode = "FlatFace"
sketch9.AttachmentOffset = App.Placement(V(0, 0, -0.125 * 25.4), App.Rotation())
sketch9.addGeometry(Part.Circle(V(47, 13, 0), V(0, 0, 1), 8), False)
sketch9.addConstraint(Sketcher.Constraint("Diameter", 0, Q("0.625 in")))
sketch9.addConstraint(Sketcher.Constraint("DistanceX", -1, 1, 0, 3, Q("46.93 mm")))
sketch9.addConstraint(Sketcher.Constraint("DistanceY", -1, 1, 0, 3, Q("12.76 mm")))
pocket4 = body.newObject("PartDesign::Pocket", "Pocket003")
pocket4.Profile = sketch9
pocket4.Type = "UpToFirst"
pocket4.Reversed = True

# Sketch on XZ plane
sketch10 = body.newObject("Sketcher::SketchObject", "Sketch009")
sketch10.AttachmentSupport = (doc.getObject("XZ_Plane"), [""])
sketch10.MapMode = "FlatFace"
sketch10.AttachmentOffset = App.Placement(V(0, 0, -0.125 * 25.4), App.Rotation())
sketch10.addGeometry(Part.Circle(V(47, 33, 0), V(0, 0, 1), 8), False)
sketch10.addConstraint(Sketcher.Constraint("Diameter", 0, Q("0.625 in")))
sketch10.addConstraint(Sketcher.Constraint("DistanceX", -1, 1, 0, 3, Q("46.93 mm")))
sketch10.addConstraint(Sketcher.Constraint("DistanceY", -1, 1, 0, 3, Q("33.08 mm")))
pocket5 = body.newObject("PartDesign::Pocket", "Pocket004")
pocket5.Profile = sketch10
pocket5.Type = "UpToFirst"
pocket5.Reversed = True

doc.recompute()
